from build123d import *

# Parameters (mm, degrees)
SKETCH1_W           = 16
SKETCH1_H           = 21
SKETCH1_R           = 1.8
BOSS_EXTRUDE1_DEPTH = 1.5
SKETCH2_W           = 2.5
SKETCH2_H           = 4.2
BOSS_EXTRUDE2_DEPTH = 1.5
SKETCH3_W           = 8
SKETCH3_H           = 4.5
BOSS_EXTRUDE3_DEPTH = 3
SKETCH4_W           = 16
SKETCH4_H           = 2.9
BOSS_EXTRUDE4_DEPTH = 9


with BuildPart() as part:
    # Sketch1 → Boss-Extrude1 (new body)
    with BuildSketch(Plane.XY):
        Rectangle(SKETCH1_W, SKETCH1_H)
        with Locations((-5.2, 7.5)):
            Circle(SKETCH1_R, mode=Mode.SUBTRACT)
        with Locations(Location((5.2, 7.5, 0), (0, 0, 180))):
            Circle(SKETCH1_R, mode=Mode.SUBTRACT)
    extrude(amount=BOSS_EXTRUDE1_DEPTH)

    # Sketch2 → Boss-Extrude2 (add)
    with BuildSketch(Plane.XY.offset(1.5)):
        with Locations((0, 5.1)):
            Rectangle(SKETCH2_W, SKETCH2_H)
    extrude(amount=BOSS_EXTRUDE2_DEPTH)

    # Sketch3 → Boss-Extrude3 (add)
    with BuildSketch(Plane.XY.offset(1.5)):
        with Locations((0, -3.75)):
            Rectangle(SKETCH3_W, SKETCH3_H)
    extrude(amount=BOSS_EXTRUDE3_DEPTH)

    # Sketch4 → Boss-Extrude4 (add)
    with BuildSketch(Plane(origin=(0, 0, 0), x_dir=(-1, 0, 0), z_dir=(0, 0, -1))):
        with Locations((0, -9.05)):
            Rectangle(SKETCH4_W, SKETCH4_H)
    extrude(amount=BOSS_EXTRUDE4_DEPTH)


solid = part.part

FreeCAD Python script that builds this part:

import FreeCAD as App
import Part
import Sketcher
Q = App.Units.Quantity

doc = App.newDocument("Part")
body = doc.addObject("PartDesign::Body", "Body")

sketch1 = doc.addObject("Sketcher::SketchObject", "Sketch")
body.addObject(sketch1)
sketch1.AttachmentSupport = (doc.XY_Plane, [""])
sketch1.MapMode = "FlatFace"
sketch1.addGeometry([
    Part.LineSegment(App.Vector(-8, 10.5, 0), App.Vector(-8, -10.5, 0)),
    Part.LineSegment(App.Vector(-8, -10.5, 0), App.Vector(8, -10.5, 0)),
    Part.LineSegment(App.Vector(8, -10.5, 0), App.Vector(8, 10.5, 0)),
    Part.LineSegment(App.Vector(8, 10.5, 0), App.Vector(-8, 10.5, 0)),
    Part.Circle(App.Vector(-5.2, 7.5, 0), App.Vector(0, 0, 1), 1.8),
    Part.Circle(App.Vector(5.2, 7.5, 0), App.Vector(0, 0, 1), 1.8),
], False)
sketch1.addConstraint([
    Sketcher.Constraint("Coincident", 0, 2, 1, 1),
    Sketcher.Constraint("Coincident", 1, 2, 2, 1),
    Sketcher.Constraint("Coincident", 2, 2, 3, 1),
    Sketcher.Constraint("Coincident", 3, 2, 0, 1),
    Sketcher.Constraint("Vertical", 0),
    Sketcher.Constraint("Horizontal", 1),
    Sketcher.Constraint("Vertical", 2),
    Sketcher.Constraint("Horizontal", 3),
    Sketcher.Constraint("Equal", 4, 5),
    Sketcher.Constraint("Symmetric", 0, 2, 2, 2, -1, 1),
    Sketcher.Constraint("Symmetric", 4, 3, 5, 3, -2),
    Sketcher.Constraint("Diameter", 4, Q("3.6 mm")),
    Sketcher.Constraint("DistanceX", 1, 1, 1, 2, Q("16 mm")),
    Sketcher.Constraint("DistanceY", 0, 2, 0, 1, Q("21 mm")),
    Sketcher.Constraint("DistanceY", 0, 2, 4, 3, Q("18 mm")),
    Sketcher.Constraint("DistanceX", 4, 3, -1, 1, Q("5.2 mm")),
])
pad1 = doc.addObject("PartDesign::Pad", "Pad")
body.addObject(pad1)
pad1.Profile = sketch1
pad1.Length = 1.5

sketch2 = doc.addObject("Sketcher::SketchObject", "Sketch001")
body.addObject(sketch2)
sketch2.AttachmentSupport = (doc.XY_Plane, [""])
sketch2.MapMode = "FlatFace"
sketch2.AttachmentOffset = App.Placement(App.Vector(0, 0, 1.5), App.Rotation())
sketch2.addGeometry([
    Part.LineSegment(App.Vector(-1.2, 7.2, 0), App.Vector(-1.2, 3, 0)),
    Part.LineSegment(App.Vector(-1.2, 3, 0), App.Vector(1.2, 3, 0)),
    Part.LineSegment(App.Vector(1.2, 3, 0), App.Vector(1.2, 7.2, 0)),
    Part.LineSegment(App.Vector(1.2, 7.2, 0), App.Vector(-1.2, 7.2, 0)),
], False)
sketch2.addConstraint([
    Sketcher.Constraint("Coincident", 0, 2, 1, 1),
    Sketcher.Constraint("Coincident", 1, 2, 2, 1),
    Sketcher.Constraint("Coincident", 2, 2, 3, 1),
    Sketcher.Constraint("Coincident", 3, 2, 0, 1),
    Sketcher.Constraint("Vertical", 0),
    Sketcher.Constraint("Horizontal", 1),
    Sketcher.Constraint("Vertical", 2),
    Sketcher.Constraint("Horizontal", 3),
    Sketcher.Constraint("DistanceX", 1, 1, 1, 2, Q("2.5 mm")),
    Sketcher.Constraint("DistanceY", 0, 2, 0, 1, Q("4.2 mm")),
    Sketcher.Constraint("DistanceY", -1, 1, 0, 2, Q("3 mm")),
    Sketcher.Constraint("DistanceX", 0, 2, -1, 1, Q("1.25 mm")),
])
pad2 = doc.addObject("PartDesign::Pad", "Pad001")
body.addObject(pad2)
pad2.Profile = sketch2
pad2.Length = 1.5

sketch3 = doc.addObject("Sketcher::SketchObject", "Sketch002")
body.addObject(sketch3)
sketch3.AttachmentSupport = (doc.XY_Plane, [""])
sketch3.MapMode = "FlatFace"
sketch3.AttachmentOffset = App.Placement(App.Vector(0, 0, 1.5), App.Rotation())
sketch3.addGeometry([
    Part.LineSegment(App.Vector(-4, -1.5, 0), App.Vector(-4, -6, 0)),
    Part.LineSegment(App.Vector(-4, -6, 0), App.Vector(4, -6, 0)),
    Part.LineSegment(App.Vector(4, -6, 0), App.Vector(4, -1.5, 0)),
    Part.LineSegment(App.Vector(4, -1.5, 0), App.Vector(-4, -1.5, 0)),
], False)
sketch3.addConstraint([
    Sketcher.Constraint("Coincident", 0, 2, 1, 1),
    Sketcher.Constraint("Coincident", 1, 2, 2, 1),
    Sketcher.Constraint("Coincident", 2, 2, 3, 1),
    Sketcher.Constraint("Coincident", 3, 2, 0, 1),
    Sketcher.Constraint("Vertical", 0),
    Sketcher.Constraint("Horizontal", 1),
    Sketcher.Constraint("Vertical", 2),
    Sketcher.Constraint("Horizontal", 3),
    Sketcher.Constraint("DistanceX", 1, 1, 1, 2, Q("8 mm")),
    Sketcher.Constraint("DistanceY", 0, 2, 0, 1, Q("4.5 mm")),
    Sketcher.Constraint("DistanceX", 0, 2, -1, 1, Q("4 mm")),
    Sketcher.Constraint("DistanceY", 0, 2, -1, 1, Q("6 mm")),
])
pad3 = doc.addObject("PartDesign::Pad", "Pad002")
body.addObject(pad3)
pad3.Profile = sketch3
pad3.Length = 3

sketch4 = doc.addObject("Sketcher::SketchObject", "Sketch003")
body.addObject(sketch4)
sketch4.AttachmentSupport = (doc.XY_Plane, [""])
sketch4.MapMode = "FlatFace"
sketch4.addGeometry([
    Part.LineSegment(App.Vector(8, -7.6, 0), App.Vector(8, -10.5, 0)),
    Part.LineSegment(App.Vector(8, -10.5, 0), App.Vector(-8, -10.5, 0)),
    Part.LineSegment(App.Vector(-8, -10.5, 0), App.Vector(-8, -7.6, 0)),
    Part.LineSegment(App.Vector(-8, -7.6, 0), App.Vector(8, -7.6, 0)),
], False)
sketch4.addConstraint([
    Sketcher.Constraint("Coincident", 0, 2, 1, 1),
    Sketcher.Constraint("Coincident", 1, 2, 2, 1),
    Sketcher.Constraint("Coincident", 2, 2, 3, 1),
    Sketcher.Constraint("Coincident", 3, 2, 0, 1),
    Sketcher.Constraint("Vertical", 0),
    Sketcher.Constraint("Horizontal", 1),
    Sketcher.Constraint("Vertical", 2),
    Sketcher.Constraint("Horizontal", 3),
    Sketcher.Constraint("DistanceX", 1, 2, 1, 1, Q("16 mm")),
    Sketcher.Constraint("DistanceY", 0, 2, 0, 1, Q("2.9 mm")),
    Sketcher.Constraint("DistanceX", -1, 1, 0, 2, Q("8 mm")),
    Sketcher.Constraint("DistanceY", 0, 2, -1, 1, Q("10.5 mm")),
])
pad4 = doc.addObject("PartDesign::Pad", "Pad003")
body.addObject(pad4)
pad4.Profile = sketch4
pad4.Length = 9
pad4.Reversed = True

doc.recompute()
